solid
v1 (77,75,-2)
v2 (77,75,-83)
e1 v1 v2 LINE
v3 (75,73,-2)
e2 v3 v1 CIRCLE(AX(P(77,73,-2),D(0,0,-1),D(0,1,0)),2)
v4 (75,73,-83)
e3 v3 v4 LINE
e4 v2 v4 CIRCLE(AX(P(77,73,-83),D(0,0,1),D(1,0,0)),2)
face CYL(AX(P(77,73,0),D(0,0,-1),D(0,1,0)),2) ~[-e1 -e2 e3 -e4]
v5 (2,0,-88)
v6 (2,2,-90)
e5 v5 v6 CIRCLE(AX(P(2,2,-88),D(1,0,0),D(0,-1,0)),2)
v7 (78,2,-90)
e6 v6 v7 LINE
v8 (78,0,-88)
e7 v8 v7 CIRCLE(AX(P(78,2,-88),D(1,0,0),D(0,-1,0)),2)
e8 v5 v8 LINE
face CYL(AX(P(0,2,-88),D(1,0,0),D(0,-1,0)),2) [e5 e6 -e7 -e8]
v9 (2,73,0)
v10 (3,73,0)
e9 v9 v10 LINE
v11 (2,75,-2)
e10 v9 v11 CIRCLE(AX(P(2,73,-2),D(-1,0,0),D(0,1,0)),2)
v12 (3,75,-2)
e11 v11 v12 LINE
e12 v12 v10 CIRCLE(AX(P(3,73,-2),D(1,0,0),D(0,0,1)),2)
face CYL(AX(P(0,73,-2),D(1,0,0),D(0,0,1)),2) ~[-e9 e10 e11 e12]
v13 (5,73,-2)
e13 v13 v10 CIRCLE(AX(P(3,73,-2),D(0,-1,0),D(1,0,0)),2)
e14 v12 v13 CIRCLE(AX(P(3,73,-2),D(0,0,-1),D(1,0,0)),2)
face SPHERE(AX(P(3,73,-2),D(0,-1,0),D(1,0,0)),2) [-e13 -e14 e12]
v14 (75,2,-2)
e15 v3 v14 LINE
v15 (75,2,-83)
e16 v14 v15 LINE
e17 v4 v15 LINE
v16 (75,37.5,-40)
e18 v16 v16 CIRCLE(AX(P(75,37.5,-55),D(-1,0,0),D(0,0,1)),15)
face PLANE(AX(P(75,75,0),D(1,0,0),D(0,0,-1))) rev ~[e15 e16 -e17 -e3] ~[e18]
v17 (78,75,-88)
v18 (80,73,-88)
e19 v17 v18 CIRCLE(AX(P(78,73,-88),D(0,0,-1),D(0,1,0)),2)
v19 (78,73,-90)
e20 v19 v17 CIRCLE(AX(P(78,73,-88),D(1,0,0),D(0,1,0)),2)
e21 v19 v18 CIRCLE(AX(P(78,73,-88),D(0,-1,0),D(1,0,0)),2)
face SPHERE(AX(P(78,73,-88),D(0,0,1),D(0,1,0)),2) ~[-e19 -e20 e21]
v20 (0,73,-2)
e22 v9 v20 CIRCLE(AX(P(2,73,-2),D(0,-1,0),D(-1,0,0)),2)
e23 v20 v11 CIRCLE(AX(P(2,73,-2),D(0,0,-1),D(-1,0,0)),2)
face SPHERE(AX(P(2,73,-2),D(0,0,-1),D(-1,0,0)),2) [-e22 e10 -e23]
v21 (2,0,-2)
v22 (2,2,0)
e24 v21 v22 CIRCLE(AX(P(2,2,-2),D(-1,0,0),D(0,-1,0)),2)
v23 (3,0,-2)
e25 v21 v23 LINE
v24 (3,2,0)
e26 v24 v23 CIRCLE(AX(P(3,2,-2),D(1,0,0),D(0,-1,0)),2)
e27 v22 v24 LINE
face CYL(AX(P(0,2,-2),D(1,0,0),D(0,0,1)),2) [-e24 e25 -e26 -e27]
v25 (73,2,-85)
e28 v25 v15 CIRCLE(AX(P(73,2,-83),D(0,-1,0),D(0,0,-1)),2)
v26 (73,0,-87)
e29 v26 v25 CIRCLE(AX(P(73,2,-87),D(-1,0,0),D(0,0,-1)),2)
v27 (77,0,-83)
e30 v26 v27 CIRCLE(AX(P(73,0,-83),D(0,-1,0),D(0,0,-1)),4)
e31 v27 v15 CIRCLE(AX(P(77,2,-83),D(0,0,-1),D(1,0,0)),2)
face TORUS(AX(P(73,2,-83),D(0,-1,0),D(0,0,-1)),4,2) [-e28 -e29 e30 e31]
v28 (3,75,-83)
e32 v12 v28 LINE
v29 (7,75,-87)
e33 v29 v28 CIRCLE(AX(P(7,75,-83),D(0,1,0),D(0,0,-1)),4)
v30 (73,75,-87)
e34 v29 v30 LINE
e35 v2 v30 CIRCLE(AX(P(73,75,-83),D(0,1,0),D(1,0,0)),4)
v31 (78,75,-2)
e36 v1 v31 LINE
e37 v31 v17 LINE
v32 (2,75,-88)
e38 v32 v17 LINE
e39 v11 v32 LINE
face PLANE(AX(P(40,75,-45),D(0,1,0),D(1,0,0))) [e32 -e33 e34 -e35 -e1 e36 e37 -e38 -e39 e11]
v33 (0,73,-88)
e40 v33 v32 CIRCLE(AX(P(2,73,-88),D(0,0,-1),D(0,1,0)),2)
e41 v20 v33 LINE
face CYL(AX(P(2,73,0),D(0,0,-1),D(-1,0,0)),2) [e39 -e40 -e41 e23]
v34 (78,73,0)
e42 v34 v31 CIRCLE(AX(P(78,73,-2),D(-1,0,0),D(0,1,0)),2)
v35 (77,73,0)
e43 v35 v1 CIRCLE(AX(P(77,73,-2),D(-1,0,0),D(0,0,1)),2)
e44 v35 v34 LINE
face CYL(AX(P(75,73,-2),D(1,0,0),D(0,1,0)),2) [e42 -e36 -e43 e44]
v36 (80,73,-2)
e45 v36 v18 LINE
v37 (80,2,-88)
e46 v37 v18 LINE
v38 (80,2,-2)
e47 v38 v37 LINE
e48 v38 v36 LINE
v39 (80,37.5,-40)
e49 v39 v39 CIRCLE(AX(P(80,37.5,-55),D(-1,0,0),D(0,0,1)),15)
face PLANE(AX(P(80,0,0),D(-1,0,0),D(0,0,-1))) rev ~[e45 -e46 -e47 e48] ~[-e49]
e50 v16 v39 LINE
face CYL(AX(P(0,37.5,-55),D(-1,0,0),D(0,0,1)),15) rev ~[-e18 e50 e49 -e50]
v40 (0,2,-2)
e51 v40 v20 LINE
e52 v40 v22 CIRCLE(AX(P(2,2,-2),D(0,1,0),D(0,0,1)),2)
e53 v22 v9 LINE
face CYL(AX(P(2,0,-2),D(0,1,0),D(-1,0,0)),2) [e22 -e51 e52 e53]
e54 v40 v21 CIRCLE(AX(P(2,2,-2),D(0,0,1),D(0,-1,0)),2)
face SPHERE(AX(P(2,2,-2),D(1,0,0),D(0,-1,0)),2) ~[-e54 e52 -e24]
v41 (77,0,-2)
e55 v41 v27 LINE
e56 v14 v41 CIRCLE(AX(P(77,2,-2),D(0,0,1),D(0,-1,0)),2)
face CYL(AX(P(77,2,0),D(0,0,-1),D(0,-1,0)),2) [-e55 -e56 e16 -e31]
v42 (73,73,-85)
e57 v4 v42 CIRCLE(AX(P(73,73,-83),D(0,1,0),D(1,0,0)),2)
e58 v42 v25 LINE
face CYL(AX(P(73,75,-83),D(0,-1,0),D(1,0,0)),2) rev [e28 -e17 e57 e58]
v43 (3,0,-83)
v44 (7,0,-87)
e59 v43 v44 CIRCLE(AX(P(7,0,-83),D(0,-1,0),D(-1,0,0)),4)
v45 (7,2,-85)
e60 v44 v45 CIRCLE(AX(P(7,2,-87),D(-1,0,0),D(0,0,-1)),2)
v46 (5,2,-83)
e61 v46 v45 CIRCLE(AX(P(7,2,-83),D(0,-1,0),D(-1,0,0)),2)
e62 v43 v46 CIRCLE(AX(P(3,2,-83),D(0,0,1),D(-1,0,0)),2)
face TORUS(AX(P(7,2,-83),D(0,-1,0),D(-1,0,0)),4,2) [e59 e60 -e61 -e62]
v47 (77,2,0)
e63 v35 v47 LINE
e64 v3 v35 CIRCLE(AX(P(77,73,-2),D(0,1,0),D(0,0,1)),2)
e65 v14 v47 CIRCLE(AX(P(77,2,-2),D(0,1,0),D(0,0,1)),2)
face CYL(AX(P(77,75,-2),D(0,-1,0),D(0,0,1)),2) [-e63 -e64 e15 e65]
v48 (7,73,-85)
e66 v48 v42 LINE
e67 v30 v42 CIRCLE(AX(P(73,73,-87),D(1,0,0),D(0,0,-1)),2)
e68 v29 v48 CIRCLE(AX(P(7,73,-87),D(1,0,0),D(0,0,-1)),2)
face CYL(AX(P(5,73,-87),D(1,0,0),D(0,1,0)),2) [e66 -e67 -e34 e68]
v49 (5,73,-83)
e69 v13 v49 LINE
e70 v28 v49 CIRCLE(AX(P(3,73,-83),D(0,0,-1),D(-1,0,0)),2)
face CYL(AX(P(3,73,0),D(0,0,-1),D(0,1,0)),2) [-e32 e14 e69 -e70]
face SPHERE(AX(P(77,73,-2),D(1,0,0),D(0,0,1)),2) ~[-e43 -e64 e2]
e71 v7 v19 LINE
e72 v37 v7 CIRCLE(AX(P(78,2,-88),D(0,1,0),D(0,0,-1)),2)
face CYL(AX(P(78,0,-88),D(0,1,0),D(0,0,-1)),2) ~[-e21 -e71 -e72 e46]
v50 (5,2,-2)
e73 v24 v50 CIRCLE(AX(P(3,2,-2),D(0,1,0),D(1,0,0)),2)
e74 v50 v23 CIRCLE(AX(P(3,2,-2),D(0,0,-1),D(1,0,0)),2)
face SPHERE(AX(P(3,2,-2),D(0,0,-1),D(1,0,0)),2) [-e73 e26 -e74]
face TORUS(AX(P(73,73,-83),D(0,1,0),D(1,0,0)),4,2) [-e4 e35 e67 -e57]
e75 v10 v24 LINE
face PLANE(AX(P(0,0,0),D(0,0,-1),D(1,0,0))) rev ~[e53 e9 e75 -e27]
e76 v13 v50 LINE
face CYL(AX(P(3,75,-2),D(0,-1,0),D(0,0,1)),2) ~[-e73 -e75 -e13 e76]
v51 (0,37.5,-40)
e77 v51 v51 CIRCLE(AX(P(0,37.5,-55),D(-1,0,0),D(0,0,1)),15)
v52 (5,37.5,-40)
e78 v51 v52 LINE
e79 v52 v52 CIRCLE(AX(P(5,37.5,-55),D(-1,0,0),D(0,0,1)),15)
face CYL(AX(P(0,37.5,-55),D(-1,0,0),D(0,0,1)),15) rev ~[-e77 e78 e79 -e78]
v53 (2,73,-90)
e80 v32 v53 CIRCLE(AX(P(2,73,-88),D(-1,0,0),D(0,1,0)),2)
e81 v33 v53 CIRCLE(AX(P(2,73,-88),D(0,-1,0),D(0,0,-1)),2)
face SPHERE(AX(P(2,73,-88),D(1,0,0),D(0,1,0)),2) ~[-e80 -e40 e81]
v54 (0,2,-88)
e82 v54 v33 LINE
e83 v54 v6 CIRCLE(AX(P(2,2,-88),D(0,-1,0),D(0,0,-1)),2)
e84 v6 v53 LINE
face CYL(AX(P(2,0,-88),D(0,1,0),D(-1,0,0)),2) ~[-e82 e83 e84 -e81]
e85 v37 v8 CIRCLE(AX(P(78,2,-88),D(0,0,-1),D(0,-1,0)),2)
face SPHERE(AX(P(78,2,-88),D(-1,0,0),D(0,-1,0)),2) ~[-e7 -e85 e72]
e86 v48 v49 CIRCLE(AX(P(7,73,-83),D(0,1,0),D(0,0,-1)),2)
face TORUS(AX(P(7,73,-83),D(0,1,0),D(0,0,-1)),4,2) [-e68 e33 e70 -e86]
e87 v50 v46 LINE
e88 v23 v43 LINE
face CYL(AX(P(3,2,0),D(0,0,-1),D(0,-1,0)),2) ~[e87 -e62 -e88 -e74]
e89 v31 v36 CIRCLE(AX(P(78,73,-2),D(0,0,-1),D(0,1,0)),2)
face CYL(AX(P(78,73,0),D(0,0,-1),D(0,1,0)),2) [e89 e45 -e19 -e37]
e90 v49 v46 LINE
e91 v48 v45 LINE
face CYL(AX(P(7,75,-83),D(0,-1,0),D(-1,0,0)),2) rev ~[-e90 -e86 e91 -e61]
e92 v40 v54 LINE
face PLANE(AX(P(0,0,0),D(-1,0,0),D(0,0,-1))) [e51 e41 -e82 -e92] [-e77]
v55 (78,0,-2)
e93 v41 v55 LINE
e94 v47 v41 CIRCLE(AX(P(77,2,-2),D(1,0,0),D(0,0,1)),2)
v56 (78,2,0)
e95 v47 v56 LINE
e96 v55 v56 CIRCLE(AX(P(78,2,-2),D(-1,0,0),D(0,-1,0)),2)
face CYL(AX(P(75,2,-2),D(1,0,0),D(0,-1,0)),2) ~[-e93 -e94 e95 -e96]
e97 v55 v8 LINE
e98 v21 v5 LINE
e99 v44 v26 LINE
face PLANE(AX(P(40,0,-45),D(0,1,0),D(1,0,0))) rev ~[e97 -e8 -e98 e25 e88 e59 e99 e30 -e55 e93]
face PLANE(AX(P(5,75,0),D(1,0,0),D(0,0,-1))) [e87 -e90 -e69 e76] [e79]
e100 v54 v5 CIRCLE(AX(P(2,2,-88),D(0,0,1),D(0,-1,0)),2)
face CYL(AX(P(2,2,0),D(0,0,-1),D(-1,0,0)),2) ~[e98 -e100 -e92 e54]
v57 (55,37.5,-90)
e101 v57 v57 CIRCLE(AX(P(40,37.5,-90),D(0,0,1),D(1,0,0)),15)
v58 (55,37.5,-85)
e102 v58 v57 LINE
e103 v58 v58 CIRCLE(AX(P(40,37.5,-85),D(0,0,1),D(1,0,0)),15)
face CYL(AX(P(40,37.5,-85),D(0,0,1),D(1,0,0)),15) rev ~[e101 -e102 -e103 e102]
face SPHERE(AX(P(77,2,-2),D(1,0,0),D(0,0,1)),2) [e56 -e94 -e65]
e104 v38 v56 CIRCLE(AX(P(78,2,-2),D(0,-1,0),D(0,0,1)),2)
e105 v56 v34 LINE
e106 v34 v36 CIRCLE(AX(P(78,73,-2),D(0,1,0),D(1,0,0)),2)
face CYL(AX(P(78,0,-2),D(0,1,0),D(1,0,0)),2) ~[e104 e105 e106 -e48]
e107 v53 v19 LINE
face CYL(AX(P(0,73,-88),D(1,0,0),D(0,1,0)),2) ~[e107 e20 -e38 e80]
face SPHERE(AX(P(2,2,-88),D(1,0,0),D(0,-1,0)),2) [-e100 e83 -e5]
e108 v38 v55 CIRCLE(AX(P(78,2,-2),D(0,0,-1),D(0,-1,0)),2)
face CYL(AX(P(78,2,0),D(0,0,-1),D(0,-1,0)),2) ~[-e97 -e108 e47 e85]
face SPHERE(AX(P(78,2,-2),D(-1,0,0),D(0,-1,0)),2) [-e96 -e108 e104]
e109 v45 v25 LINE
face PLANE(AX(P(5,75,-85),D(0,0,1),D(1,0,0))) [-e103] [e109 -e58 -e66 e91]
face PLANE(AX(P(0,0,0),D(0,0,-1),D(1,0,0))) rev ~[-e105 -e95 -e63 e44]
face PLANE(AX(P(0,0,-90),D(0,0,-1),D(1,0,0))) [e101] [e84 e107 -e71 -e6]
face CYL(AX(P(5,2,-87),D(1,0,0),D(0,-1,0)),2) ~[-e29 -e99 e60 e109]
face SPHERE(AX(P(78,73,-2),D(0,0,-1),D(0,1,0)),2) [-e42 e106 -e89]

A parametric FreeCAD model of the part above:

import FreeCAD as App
import Part
import Sketcher

V = App.Vector
Q = App.Units.Quantity


def edges_at(feature, points):
    """Names of the edges that pass closest to the given points."""
    edges = feature.Shape.Edges
    near = lambda p: min(range(len(edges)), key=lambda i: edges[i].distToShape(Part.Vertex(*p))[0])
    return sorted({f"Edge{near(p) + 1}" for p in points})

doc = App.newDocument("Part")
body = doc.addObject("PartDesign::Body", "Body")

sketch1 = body.newObject("Sketcher::SketchObject", "Sketch")
sketch1.AttachmentSupport = (doc.getObject("XZ_Plane"), [""])
sketch1.MapMode = "FlatFace"
sketch1.addGeometry(Part.LineSegment(V(0, -90, 0), V(0, 0, 0)), False)
sketch1.addGeometry(Part.LineSegment(V(0, 0, 0), V(80, 0, 0)), False)
sketch1.addGeometry(Part.LineSegment(V(80, 0, 0), V(80, -90, 0)), False)
sketch1.addGeometry(Part.LineSegment(V(80, -90, 0), V(0, -90, 0)), False)
sketch1.addConstraint(Sketcher.Constraint("Coincident", 0, 2, 1, 1))
sketch1.addConstraint(Sketcher.Constraint("Coincident", 1, 2, 2, 1))
sketch1.addConstraint(Sketcher.Constraint("Coincident", 2, 2, 3, 1))
sketch1.addConstraint(Sketcher.Constraint("Coincident", 3, 2, 0, 1))
sketch1.addConstraint(Sketcher.Constraint("Vertical", 0))
sketch1.addConstraint(Sketcher.Constraint("Horizontal", 1))
sketch1.addConstraint(Sketcher.Constraint("Vertical", 2))
sketch1.addConstraint(Sketcher.Constraint("Horizontal", 3))
sketch1.addConstraint(Sketcher.Constraint("Coincident", 0, 2, -1, 1))
sketch1.addConstraint(Sketcher.Constraint("DistanceX", 1, 1, 1, 2, Q("80 mm")))
sketch1.addConstraint(Sketcher.Constraint("DistanceY", 0, 1, 0, 2, Q("90 mm")))
pad1 = body.newObject("PartDesign::Pad", "Pad")
pad1.Profile = sketch1
pad1.Length = 75
pad1.Reversed = True

sketch2 = body.newObject("Sketcher::SketchObject", "Sketch001")
sketch2.AttachmentSupport = (doc.getObject("XZ_Plane"), [""])
sketch2.MapMode = "FlatFace"
sketch2.AttachmentOffset = App.Placement(V(0, 0, -75), App.Rotation())
sketch2.addGeometry(Part.LineSegment(V(5, -85, 0), V(5, 0, 0)), False)
sketch2.addGeometry(Part.LineSegment(V(5, 0, 0), V(75, 0, 0)), False)
sketch2.addGeometry(Part.LineSegment(V(75, 0, 0), V(75, -85, 0)), False)
sketch2.addGeometry(Part.LineSegment(V(75, -85, 0), V(5, -85, 0)), False)
sketch2.addConstraint(Sketcher.Constraint("Coincident", 0, 2, 1, 1))
sketch2.addConstraint(Sketcher.Constraint("Coincident", 1, 2, 2, 1))
sketch2.addConstraint(Sketcher.Constraint("Coincident", 2, 2, 3, 1))
sketch2.addConstraint(Sketcher.Constraint("Coincident", 3, 2, 0, 1))
sketch2.addConstraint(Sketcher.Constraint("Vertical", 0))
sketch2.addConstraint(Sketcher.Constraint("Horizontal", 1))
sketch2.addConstraint(Sketcher.Constraint("Vertical", 2))
sketch2.addConstraint(Sketcher.Constraint("Horizontal", 3))
sketch2.addConstraint(Sketcher.Constraint("PointOnObject", 0, 2, -1))
sketch2.addConstraint(Sketcher.Constraint("DistanceX", 1, 1, 1, 2, Q("70 mm")))
sketch2.addConstraint(Sketcher.Constraint("DistanceY", 0, 1, 0, 2, Q("85 mm")))
sketch2.addConstraint(Sketcher.Constraint("DistanceX", -1, 1, 0, 2, Q("5 mm")))
pocket1 = body.newObject("PartDesign::Pocket", "Pocket")
pocket1.Profile = sketch2
pocket1.Type = "ThroughAll"
pocket1.Reversed = True

sketch3 = body.newObject("Sketcher::SketchObject", "Sketch002")
sketch3.AttachmentSupport = (doc.getObject("YZ_Plane"), [""])
sketch3.MapMode = "FlatFace"
sketch3.addGeometry(Part.Circle(V(37.5, -55, 0), V(0, 0, 1), 15), False)
sketch3.addConstraint(Sketcher.Constraint("Diameter", 0, Q("30 mm")))
sketch3.addConstraint(Sketcher.Constraint("DistanceY", 0, 3, -1, 1, Q("55 mm")))
sketch3.addConstraint(Sketcher.Constraint("DistanceX", -1, 1, 0, 3, Q("37.5 mm")))
pocket2 = body.newObject("PartDesign::Pocket", "Pocket001")
pocket2.Profile = sketch3
pocket2.Type = "ThroughAll"
pocket2.Reversed = True

sketch4 = body.newObject("Sketcher::SketchObject", "Sketch003")
sketch4.AttachmentSupport = (doc.getObject("XY_Plane"), [""])
sketch4.MapMode = "FlatFace"
sketch4.AttachmentOffset = App.Placement(V(0, 0, -85), App.Rotation())
sketch4.addGeometry(Part.Circle(V(40, 37.5, 0), V(0, 0, 1), 15), False)
sketch4.addConstraint(Sketcher.Constraint("Diameter", 0, Q("30 mm")))
sketch4.addConstraint(Sketcher.Constraint("DistanceX", -1, 1, 0, 3, Q("40 mm")))
sketch4.addConstraint(Sketcher.Constraint("DistanceY", -1, 1, 0, 3, Q("37.5 mm")))
pocket3 = body.newObject("PartDesign::Pocket", "Pocket002")
pocket3.Profile = sketch4
pocket3.Type = "ThroughAll"
doc.recompute()

fillet = body.newObject("PartDesign::Fillet", "Fillet")
fillet.Base = (pocket3, edges_at(pocket3, [
    (80, 75, -45),
    (77.5, 0, 0),
    (40, 75, -90),
    (77.5, 75, 0),
    (75, 37.5, 0),
    (5, 0, -42.5),
    (5, 37.5, 0),
    (40, 0, -85),
    (5, 37.5, -85),
    (75, 0, -42.5),
    (75, 37.5, -85),
    (75, 75, -42.5),
    (40, 75, -85),
    (5, 75, -42.5),
    (0, 75, -45),
    (40, 0, -90),
    (80, 0, -45),
    (2.5, 0, 0),
    (0, 0, -45),
    (0, 37.5, -90),
    (80, 37.5, -90),
    (80, 37.5, 0),
    (0, 37.5, 0),
    (2.5, 75, 0),
]))
fillet.Radius = 2

doc.recompute()
